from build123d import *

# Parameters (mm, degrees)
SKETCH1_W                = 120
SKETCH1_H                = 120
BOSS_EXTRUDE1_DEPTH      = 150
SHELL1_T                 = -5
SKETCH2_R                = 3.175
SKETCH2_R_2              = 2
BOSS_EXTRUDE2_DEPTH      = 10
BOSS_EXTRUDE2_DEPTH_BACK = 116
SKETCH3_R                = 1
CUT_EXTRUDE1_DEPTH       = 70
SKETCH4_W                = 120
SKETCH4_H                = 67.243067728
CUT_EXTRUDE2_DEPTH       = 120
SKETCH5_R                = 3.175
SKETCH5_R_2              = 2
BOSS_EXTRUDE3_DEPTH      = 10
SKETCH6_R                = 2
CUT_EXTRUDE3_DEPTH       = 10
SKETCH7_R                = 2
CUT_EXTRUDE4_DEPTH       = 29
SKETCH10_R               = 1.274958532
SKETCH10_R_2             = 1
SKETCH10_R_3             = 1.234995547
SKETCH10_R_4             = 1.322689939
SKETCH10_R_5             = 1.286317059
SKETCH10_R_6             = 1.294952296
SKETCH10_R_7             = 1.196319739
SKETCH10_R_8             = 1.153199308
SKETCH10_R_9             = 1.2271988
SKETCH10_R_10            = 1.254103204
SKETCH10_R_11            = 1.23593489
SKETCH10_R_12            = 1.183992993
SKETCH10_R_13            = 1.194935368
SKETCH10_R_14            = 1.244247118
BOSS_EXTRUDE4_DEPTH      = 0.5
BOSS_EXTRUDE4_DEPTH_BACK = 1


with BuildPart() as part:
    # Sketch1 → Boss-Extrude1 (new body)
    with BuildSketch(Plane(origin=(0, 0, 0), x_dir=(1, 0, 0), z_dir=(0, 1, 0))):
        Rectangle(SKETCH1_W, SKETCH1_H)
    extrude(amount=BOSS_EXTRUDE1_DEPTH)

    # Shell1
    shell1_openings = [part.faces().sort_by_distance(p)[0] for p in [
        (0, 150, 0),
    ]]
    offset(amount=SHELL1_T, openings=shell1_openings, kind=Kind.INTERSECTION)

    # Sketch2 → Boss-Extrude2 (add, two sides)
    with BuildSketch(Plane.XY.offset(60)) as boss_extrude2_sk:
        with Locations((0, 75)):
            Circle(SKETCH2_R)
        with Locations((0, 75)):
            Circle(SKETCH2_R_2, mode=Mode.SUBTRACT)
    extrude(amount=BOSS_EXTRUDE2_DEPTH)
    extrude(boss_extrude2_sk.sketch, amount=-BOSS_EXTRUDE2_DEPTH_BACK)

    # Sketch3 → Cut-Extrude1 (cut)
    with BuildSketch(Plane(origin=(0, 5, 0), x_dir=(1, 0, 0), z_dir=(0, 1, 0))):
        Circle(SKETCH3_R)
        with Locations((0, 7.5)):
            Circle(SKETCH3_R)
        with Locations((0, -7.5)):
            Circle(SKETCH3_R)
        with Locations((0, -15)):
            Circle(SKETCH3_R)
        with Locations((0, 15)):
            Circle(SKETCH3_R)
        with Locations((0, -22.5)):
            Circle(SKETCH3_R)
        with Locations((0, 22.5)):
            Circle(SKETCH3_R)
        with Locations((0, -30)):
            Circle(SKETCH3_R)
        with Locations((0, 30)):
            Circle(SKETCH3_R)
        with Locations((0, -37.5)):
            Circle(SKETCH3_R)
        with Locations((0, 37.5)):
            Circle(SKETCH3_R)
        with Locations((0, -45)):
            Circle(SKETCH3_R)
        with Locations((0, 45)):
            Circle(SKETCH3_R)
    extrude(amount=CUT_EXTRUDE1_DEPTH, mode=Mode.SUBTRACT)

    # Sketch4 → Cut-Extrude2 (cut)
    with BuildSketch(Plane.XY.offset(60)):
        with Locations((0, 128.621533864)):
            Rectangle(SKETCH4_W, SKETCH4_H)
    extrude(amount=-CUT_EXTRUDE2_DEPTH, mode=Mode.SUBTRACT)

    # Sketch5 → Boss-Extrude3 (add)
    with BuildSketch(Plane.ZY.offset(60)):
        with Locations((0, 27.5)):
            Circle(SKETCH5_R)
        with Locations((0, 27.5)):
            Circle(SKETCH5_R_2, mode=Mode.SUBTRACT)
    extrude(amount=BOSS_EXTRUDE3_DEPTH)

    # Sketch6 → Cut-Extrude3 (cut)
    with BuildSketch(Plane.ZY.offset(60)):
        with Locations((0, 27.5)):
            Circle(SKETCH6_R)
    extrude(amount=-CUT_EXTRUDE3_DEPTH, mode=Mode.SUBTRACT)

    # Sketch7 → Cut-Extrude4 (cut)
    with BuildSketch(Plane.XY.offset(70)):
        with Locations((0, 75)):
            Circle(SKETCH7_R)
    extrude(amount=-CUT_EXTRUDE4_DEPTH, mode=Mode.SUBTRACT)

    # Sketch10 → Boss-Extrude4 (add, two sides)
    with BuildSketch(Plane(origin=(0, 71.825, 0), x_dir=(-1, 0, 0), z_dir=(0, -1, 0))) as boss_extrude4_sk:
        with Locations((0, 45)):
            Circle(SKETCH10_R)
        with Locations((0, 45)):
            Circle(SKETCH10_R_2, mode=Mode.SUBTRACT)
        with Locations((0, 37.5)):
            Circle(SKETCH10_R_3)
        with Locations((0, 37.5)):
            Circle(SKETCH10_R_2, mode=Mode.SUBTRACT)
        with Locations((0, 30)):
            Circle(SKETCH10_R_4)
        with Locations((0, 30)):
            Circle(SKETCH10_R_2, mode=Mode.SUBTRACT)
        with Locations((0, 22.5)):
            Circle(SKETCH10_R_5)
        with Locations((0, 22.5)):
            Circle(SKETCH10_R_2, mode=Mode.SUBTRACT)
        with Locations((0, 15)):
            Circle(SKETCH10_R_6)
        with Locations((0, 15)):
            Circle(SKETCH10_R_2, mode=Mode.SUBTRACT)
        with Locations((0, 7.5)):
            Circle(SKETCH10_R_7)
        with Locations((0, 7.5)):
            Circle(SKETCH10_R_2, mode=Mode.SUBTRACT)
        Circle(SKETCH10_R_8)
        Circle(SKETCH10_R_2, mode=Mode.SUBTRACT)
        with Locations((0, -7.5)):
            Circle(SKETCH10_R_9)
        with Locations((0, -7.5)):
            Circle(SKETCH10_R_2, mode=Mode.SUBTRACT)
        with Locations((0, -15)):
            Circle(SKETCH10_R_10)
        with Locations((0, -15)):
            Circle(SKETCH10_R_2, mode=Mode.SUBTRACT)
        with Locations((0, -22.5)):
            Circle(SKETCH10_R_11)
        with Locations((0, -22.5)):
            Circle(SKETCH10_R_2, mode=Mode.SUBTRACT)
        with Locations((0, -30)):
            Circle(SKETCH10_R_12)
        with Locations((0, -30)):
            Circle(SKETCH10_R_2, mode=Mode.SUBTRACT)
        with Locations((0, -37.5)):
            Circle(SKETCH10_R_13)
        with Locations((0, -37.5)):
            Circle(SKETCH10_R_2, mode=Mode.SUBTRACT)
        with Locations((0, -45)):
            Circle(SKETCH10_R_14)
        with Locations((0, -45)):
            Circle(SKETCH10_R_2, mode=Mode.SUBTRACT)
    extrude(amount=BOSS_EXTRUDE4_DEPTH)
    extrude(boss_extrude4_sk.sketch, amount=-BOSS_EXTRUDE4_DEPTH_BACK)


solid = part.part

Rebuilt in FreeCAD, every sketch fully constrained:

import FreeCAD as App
import Part
import Sketcher
from FreeCAD import Vector


def faces_at(feature, points):
    """Names of the faces that lie closest to the given points."""
    faces = feature.Shape.Faces
    near = lambda p: min(range(len(faces)), key=lambda i: faces[i].distToShape(Part.Vertex(*p))[0])
    return sorted({f"Face{near(p) + 1}" for p in points})


def add_polygon(sketch, points):
    """Adds a closed chain of lines whose ends are joined by coincident constraints."""
    first, n = sketch.GeometryCount, len(points)
    for a, b in zip(points, points[1:] + points[:1]):
        sketch.addGeometry(Part.LineSegment(App.Vector(*a, 0), App.Vector(*b, 0)), False)
    for i in range(n):
        sketch.addConstraint(Sketcher.Constraint("Coincident", first + i, 2, first + (i + 1) % n, 1))

doc = App.newDocument("Part")
body = doc.addObject("PartDesign::Body", "Body")

sketch1 = body.newObject("Sketcher::SketchObject", "Sketch")
sketch1.AttachmentSupport = (doc.getObject("XZ_Plane"), [""])
sketch1.MapMode = "FlatFace"
add_polygon(sketch1, [(-60, -60), (-60, 60), (60, 60), (60, -60)])
sketch1.addConstraint([
    Sketcher.Constraint("Vertical", 0),
    Sketcher.Constraint("Horizontal", 1),
    Sketcher.Constraint("Vertical", 2),
    Sketcher.Constraint("Horizontal", 3),
    Sketcher.Constraint("Symmetric", 0, 2, 2, 2, -1, 1),
    Sketcher.Constraint("Equal", 3, 0),
    Sketcher.Constraint("DistanceX", 1, 1, 1, 2, 120.0),
])
pad1 = body.newObject("PartDesign::Pad", "Pad")
pad1.Profile = sketch1
pad1.Length = 150
pad1.Reversed = True
doc.recompute()

thickness = body.newObject("PartDesign::Thickness", "Thickness")
thickness.Base = (pad1, faces_at(pad1, [(0, 150, 0)]))
thickness.Value = 5
thickness.Reversed = True
thickness.Join = "Intersection"

sketch2 = body.newObject("Sketcher::SketchObject", "Sketch001")
sketch2.AttachmentSupport = (doc.getObject("XY_Plane"), [""])
sketch2.MapMode = "FlatFace"
sketch2.AttachmentOffset = App.Placement(Vector(0, 0, 60), App.Rotation())
sketch2.addGeometry([
    Part.Circle(Vector(0, 75, 0), Vector(0, 0, 1), 3.175),
    Part.Circle(Vector(0, 75, 0), Vector(0, 0, 1), 2),
], False)
sketch2.addConstraint([
    Sketcher.Constraint("Coincident", 1, 3, 0, 3),
    Sketcher.Constraint("PointOnObject", 0, 3, -2),
    Sketcher.Constraint("Diameter", 1, 4.0),
    Sketcher.Constraint("Diameter", 0, 6.35),
    Sketcher.Constraint("DistanceY", -1, 1, 0, 3, 75.0),
])
pad2 = body.newObject("PartDesign::Pad", "Pad001")
pad2.Profile = sketch2
pad2.Type = "TwoLengths"
pad2.Length = 10
pad2.Length2 = 116

sketch3 = body.newObject("Sketcher::SketchObject", "Sketch002")
sketch3.AttachmentSupport = (doc.getObject("XZ_Plane"), [""])
sketch3.MapMode = "FlatFace"
sketch3.AttachmentOffset = App.Placement(Vector(0, 0, -5), App.Rotation())
sketch3.addGeometry([
    Part.Circle(Vector(0, 0, 0), Vector(0, 0, 1), 1),
    Part.Circle(Vector(0, -7.5, 0), Vector(0, 0, 1), 1),
    Part.Circle(Vector(0, 7.5, 0), Vector(0, 0, 1), 1),
    Part.Circle(Vector(0, 15, 0), Vector(0, 0, 1), 1),
    Part.Circle(Vector(0, -15, 0), Vector(0, 0, 1), 1),
    Part.Circle(Vector(0, 22.5, 0), Vector(0, 0, 1), 1),
    Part.Circle(Vector(0, -22.5, 0), Vector(0, 0, 1), 1),
    Part.Circle(Vector(0, 30, 0), Vector(0, 0, 1), 1),
    Part.Circle(Vector(0, -30, 0), Vector(0, 0, 1), 1),
    Part.Circle(Vector(0, 37.5, 0), Vector(0, 0, 1), 1),
    Part.Circle(Vector(0, -37.5, 0), Vector(0, 0, 1), 1),
    Part.Circle(Vector(0, 45, 0), Vector(0, 0, 1), 1),
    Part.Circle(Vector(0, -45, 0), Vector(0, 0, 1), 1),
], False)
sketch3.addConstraint([
    Sketcher.Constraint("Coincident", 0, 3, -1, 1),
    Sketcher.Constraint("Equal", 0, 1),
    Sketcher.Constraint("Equal", 1, 2),
    Sketcher.Constraint("Equal", 2, 3),
    Sketcher.Constraint("Equal", 3, 4),
    Sketcher.Constraint("Equal", 4, 5),
    Sketcher.Constraint("Equal", 5, 6),
    Sketcher.Constraint("Equal", 6, 7),
    Sketcher.Constraint("Equal", 7, 8),
    Sketcher.Constraint("Equal", 8, 9),
    Sketcher.Constraint("Equal", 9, 10),
    Sketcher.Constraint("Equal", 10, 11),
    Sketcher.Constraint("Equal", 11, 12),
    Sketcher.Constraint("Symmetric", 1, 3, 2, 3, -1, 1),
    Sketcher.Constraint("Symmetric", 3, 3, 4, 3, -1, 1),
    Sketcher.Constraint("Symmetric", 5, 3, 6, 3, -1, 1),
    Sketcher.Constraint("Symmetric", 7, 3, 8, 3, -1, 1),
    Sketcher.Constraint("Symmetric", 9, 3, 10, 3, -1, 1),
    Sketcher.Constraint("Symmetric", 11, 3, 12, 3, -1, 1),
    Sketcher.Constraint("PointOnObject", 1, 3, -2),
    Sketcher.Constraint("PointOnObject", 3, 3, -2),
    Sketcher.Constraint("PointOnObject", 5, 3, -2),
    Sketcher.Constraint("PointOnObject", 7, 3, -2),
    Sketcher.Constraint("PointOnObject", 9, 3, -2),
    Sketcher.Constraint("PointOnObject", 11, 3, -2),
    Sketcher.Constraint("Diameter", 0, 2.0),
    Sketcher.Constraint("DistanceY", -1, 1, 3, 3, 15.0),
    Sketcher.Constraint("DistanceY", -1, 1, 7, 3, 30.0),
    Sketcher.Constraint("DistanceY", -1, 1, 11, 3, 45.0),
    Sketcher.Constraint("DistanceY", 1, 3, 2, 3, 15.0),
    Sketcher.Constraint("DistanceY", 2, 3, 5, 3, 15.0),
    Sketcher.Constraint("DistanceY", 5, 3, 9, 3, 15.0),
])
pocket1 = body.newObject("PartDesign::Pocket", "Pocket")
pocket1.Profile = sketch3
pocket1.Length = 70

sketch4 = body.newObject("Sketcher::SketchObject", "Sketch003")
sketch4.AttachmentSupport = (doc.getObject("XY_Plane"), [""])
sketch4.MapMode = "FlatFace"
sketch4.AttachmentOffset = App.Placement(Vector(0, 0, 60), App.Rotation())
add_polygon(sketch4, [(-60, 162.243068), (-60, 95), (60, 95), (60, 162.243068)])
sketch4.addConstraint([
    Sketcher.Constraint("Vertical", 0),
    Sketcher.Constraint("Horizontal", 1),
    Sketcher.Constraint("Vertical", 2),
    Sketcher.Constraint("Horizontal", 3),
    Sketcher.Constraint("DistanceX", 1, 1, 1, 2, 120.0),
    Sketcher.Constraint("DistanceX", 0, 2, -1, 1, 60.0),
    Sketcher.Constraint("DistanceY", -1, 1, 0, 2, 95.0),
    Sketcher.Constraint("DistanceY", 0, 2, 0, 1, 67.243068),
])
pocket2 = body.newObject("PartDesign::Pocket", "Pocket001")
pocket2.Profile = sketch4
pocket2.Length = 120

sketch5 = body.newObject("Sketcher::SketchObject", "Sketch004")
sketch5.AttachmentSupport = (doc.getObject("YZ_Plane"), [""])
sketch5.MapMode = "FlatFace"
sketch5.AttachmentOffset = App.Placement(Vector(0, 0, -60), App.Rotation())
sketch5.addGeometry([
    Part.Circle(Vector(27.5, 0, 0), Vector(0, 0, 1), 3.175),
    Part.Circle(Vector(27.5, 0, 0), Vector(0, 0, 1), 2),
], False)
sketch5.addConstraint([
    Sketcher.Constraint("Coincident", 1, 3, 0, 3),
    Sketcher.Constraint("PointOnObject", 0, 3, -1),
    Sketcher.Constraint("Diameter", 1, 4.0),
    Sketcher.Constraint("Diameter", 0, 6.35),
    Sketcher.Constraint("DistanceX", -1, 1, 0, 3, 27.5),
])
pad3 = body.newObject("PartDesign::Pad", "Pad002")
pad3.Profile = sketch5
pad3.Length = 10
pad3.Reversed = True

sketch6 = body.newObject("Sketcher::SketchObject", "Sketch005")
sketch6.AttachmentSupport = (doc.getObject("YZ_Plane"), [""])
sketch6.MapMode = "FlatFace"
sketch6.AttachmentOffset = App.Placement(Vector(0, 0, -60), App.Rotation())
sketch6.addGeometry(Part.Circle(Vector(27.5, 0, 0), Vector(0, 0, 1), 2), False)
sketch6.addConstraint([
    Sketcher.Constraint("PointOnObject", 0, 3, -1),
    Sketcher.Constraint("Diameter", 0, 4.0),
    Sketcher.Constraint("DistanceX", -1, 1, 0, 3, 27.5),
])
pocket3 = body.newObject("PartDesign::Pocket", "Pocket002")
pocket3.Profile = sketch6
pocket3.Length = 10
pocket3.Reversed = True

sketch7 = body.newObject("Sketcher::SketchObject", "Sketch006")
sketch7.AttachmentSupport = (doc.getObject("XY_Plane"), [""])
sketch7.MapMode = "FlatFace"
sketch7.AttachmentOffset = App.Placement(Vector(0, 0, 70), App.Rotation())
sketch7.addGeometry(Part.Circle(Vector(0, 75, 0), Vector(0, 0, 1), 2), False)
sketch7.addConstraint([
    Sketcher.Constraint("PointOnObject", 0, 3, -2),
    Sketcher.Constraint("Diameter", 0, 4.0),
    Sketcher.Constraint("DistanceY", -1, 1, 0, 3, 75.0),
])
pocket4 = body.newObject("PartDesign::Pocket", "Pocket003")
pocket4.Profile = sketch7
pocket4.Length = 29

sketch8 = body.newObject("Sketcher::SketchObject", "Sketch007")
sketch8.AttachmentSupport = (doc.getObject("XZ_Plane"), [""])
sketch8.MapMode = "FlatFace"
sketch8.AttachmentOffset = App.Placement(Vector(0, 0, -71.825), App.Rotation())
sketch8.addGeometry([
    Part.Circle(Vector(0, -45, 0), Vector(0, 0, 1), 1.274959),
    Part.Circle(Vector(0, -45, 0), Vector(0, 0, 1), 1),
    Part.Circle(Vector(0, -37.5, 0), Vector(0, 0, 1), 1.234996),
    Part.Circle(Vector(0, -37.5, 0), Vector(0, 0, 1), 1),
    Part.Circle(Vector(0, -30, 0), Vector(0, 0, 1), 1.32269),
    Part.Circle(Vector(0, -30, 0), Vector(0, 0, 1), 1),
    Part.Circle(Vector(0, -22.5, 0), Vector(0, 0, 1), 1.286317),
    Part.Circle(Vector(0, -22.5, 0), Vector(0, 0, 1), 1),
    Part.Circle(Vector(0, -15, 0), Vector(0, 0, 1), 1.294952),
    Part.Circle(Vector(0, -15, 0), Vector(0, 0, 1), 1),
    Part.Circle(Vector(0, -7.5, 0), Vector(0, 0, 1), 1.19632),
    Part.Circle(Vector(0, -7.5, 0), Vector(0, 0, 1), 1),
    Part.Circle(Vector(0, 0, 0), Vector(0, 0, 1), 1.153199),
    Part.Circle(Vector(0, 0, 0), Vector(0, 0, 1), 1),
    Part.Circle(Vector(0, 7.5, 0), Vector(0, 0, 1), 1.227199),
    Part.Circle(Vector(0, 7.5, 0), Vector(0, 0, 1), 1),
    Part.Circle(Vector(0, 15, 0), Vector(0, 0, 1), 1.254103),
    Part.Circle(Vector(0, 15, 0), Vector(0, 0, 1), 1),
    Part.Circle(Vector(0, 22.5, 0), Vector(0, 0, 1), 1.235935),
    Part.Circle(Vector(0, 22.5, 0), Vector(0, 0, 1), 1),
    Part.Circle(Vector(0, 30, 0), Vector(0, 0, 1), 1.183993),
    Part.Circle(Vector(0, 30, 0), Vector(0, 0, 1), 1),
    Part.Circle(Vector(0, 37.5, 0), Vector(0, 0, 1), 1.194935),
    Part.Circle(Vector(0, 37.5, 0), Vector(0, 0, 1), 1),
    Part.Circle(Vector(0, 45, 0), Vector(0, 0, 1), 1.244247),
    Part.Circle(Vector(0, 45, 0), Vector(0, 0, 1), 1),
], False)
sketch8.addConstraint([
    Sketcher.Constraint("Coincident", 12, 3, -1, 1),
    Sketcher.Constraint("Coincident", 13, 3, -1, 1),
    Sketcher.Constraint("Coincident", 1, 3, 0, 3),
    Sketcher.Constraint("Coincident", 3, 3, 2, 3),
    Sketcher.Constraint("Coincident", 5, 3, 4, 3),
    Sketcher.Constraint("Coincident", 7, 3, 6, 3),
    Sketcher.Constraint("Coincident", 9, 3, 8, 3),
    Sketcher.Constraint("Coincident", 11, 3, 10, 3),
    Sketcher.Constraint("Coincident", 15, 3, 14, 3),
    Sketcher.Constraint("Coincident", 17, 3, 16, 3),
    Sketcher.Constraint("Coincident", 19, 3, 18, 3),
    Sketcher.Constraint("Coincident", 21, 3, 20, 3),
    Sketcher.Constraint("Coincident", 23, 3, 22, 3),
    Sketcher.Constraint("Coincident", 25, 3, 24, 3),
    Sketcher.Constraint("Equal", 1, 3),
    Sketcher.Constraint("Equal", 3, 5),
    Sketcher.Constraint("Equal", 5, 7),
    Sketcher.Constraint("Equal", 7, 9),
    Sketcher.Constraint("Equal", 9, 11),
    Sketcher.Constraint("Equal", 11, 13),
    Sketcher.Constraint("Equal", 13, 15),
    Sketcher.Constraint("Equal", 15, 17),
    Sketcher.Constraint("Equal", 17, 19),
    Sketcher.Constraint("Equal", 19, 21),
    Sketcher.Constraint("Equal", 21, 23),
    Sketcher.Constraint("Equal", 23, 25),
    Sketcher.Constraint("Symmetric", 10, 3, 14, 3, -1, 1),
    Sketcher.Constraint("Symmetric", 8, 3, 16, 3, -1, 1),
    Sketcher.Constraint("Symmetric", 6, 3, 18, 3, -1, 1),
    Sketcher.Constraint("Symmetric", 4, 3, 20, 3, -1, 1),
    Sketcher.Constraint("Symmetric", 2, 3, 22, 3, -1, 1),
    Sketcher.Constraint("Symmetric", 0, 3, 24, 3, -1, 1),
    Sketcher.Constraint("PointOnObject", 0, 3, -2),
    Sketcher.Constraint("PointOnObject", 2, 3, -2),
    Sketcher.Constraint("PointOnObject", 4, 3, -2),
    Sketcher.Constraint("PointOnObject", 6, 3, -2),
    Sketcher.Constraint("PointOnObject", 8, 3, -2),
    Sketcher.Constraint("PointOnObject", 10, 3, -2),
    Sketcher.Constraint("Diameter", 1, 2.0),
    Sketcher.Constraint("DistanceY", 0, 3, -1, 1, 45.0),
    Sketcher.Constraint("DistanceY", 4, 3, -1, 1, 30.0),
    Sketcher.Constraint("DistanceY", 8, 3, -1, 1, 15.0),
    Sketcher.Constraint("DistanceY", 2, 3, 6, 3, 15.0),
    Sketcher.Constraint("DistanceY", 6, 3, 10, 3, 15.0),
    Sketcher.Constraint("DistanceY", 10, 3, 14, 3, 15.0),
    Sketcher.Constraint("Diameter", 12, 2.306399),
    Sketcher.Constraint("Diameter", 2, 2.469991),
    Sketcher.Constraint("Diameter", 4, 2.64538),
    Sketcher.Constraint("Diameter", 10, 2.392639),
    Sketcher.Constraint("Diameter", 18, 2.47187),
    Sketcher.Constraint("Diameter", 22, 2.389871),
    Sketcher.Constraint("Diameter", 0, 2.549917),
    Sketcher.Constraint("Diameter", 6, 2.572634),
    Sketcher.Constraint("Diameter", 8, 2.589905),
    Sketcher.Constraint("Diameter", 14, 2.454398),
    Sketcher.Constraint("Diameter", 16, 2.508206),
    Sketcher.Constraint("Diameter", 20, 2.367986),
    Sketcher.Constraint("Diameter", 24, 2.488494),
])
pad4 = body.newObject("PartDesign::Pad", "Pad003")
pad4.Profile = sketch8
pad4.Type = "TwoLengths"
pad4.Length = 0.5
pad4.Length2 = 1

doc.recompute()
